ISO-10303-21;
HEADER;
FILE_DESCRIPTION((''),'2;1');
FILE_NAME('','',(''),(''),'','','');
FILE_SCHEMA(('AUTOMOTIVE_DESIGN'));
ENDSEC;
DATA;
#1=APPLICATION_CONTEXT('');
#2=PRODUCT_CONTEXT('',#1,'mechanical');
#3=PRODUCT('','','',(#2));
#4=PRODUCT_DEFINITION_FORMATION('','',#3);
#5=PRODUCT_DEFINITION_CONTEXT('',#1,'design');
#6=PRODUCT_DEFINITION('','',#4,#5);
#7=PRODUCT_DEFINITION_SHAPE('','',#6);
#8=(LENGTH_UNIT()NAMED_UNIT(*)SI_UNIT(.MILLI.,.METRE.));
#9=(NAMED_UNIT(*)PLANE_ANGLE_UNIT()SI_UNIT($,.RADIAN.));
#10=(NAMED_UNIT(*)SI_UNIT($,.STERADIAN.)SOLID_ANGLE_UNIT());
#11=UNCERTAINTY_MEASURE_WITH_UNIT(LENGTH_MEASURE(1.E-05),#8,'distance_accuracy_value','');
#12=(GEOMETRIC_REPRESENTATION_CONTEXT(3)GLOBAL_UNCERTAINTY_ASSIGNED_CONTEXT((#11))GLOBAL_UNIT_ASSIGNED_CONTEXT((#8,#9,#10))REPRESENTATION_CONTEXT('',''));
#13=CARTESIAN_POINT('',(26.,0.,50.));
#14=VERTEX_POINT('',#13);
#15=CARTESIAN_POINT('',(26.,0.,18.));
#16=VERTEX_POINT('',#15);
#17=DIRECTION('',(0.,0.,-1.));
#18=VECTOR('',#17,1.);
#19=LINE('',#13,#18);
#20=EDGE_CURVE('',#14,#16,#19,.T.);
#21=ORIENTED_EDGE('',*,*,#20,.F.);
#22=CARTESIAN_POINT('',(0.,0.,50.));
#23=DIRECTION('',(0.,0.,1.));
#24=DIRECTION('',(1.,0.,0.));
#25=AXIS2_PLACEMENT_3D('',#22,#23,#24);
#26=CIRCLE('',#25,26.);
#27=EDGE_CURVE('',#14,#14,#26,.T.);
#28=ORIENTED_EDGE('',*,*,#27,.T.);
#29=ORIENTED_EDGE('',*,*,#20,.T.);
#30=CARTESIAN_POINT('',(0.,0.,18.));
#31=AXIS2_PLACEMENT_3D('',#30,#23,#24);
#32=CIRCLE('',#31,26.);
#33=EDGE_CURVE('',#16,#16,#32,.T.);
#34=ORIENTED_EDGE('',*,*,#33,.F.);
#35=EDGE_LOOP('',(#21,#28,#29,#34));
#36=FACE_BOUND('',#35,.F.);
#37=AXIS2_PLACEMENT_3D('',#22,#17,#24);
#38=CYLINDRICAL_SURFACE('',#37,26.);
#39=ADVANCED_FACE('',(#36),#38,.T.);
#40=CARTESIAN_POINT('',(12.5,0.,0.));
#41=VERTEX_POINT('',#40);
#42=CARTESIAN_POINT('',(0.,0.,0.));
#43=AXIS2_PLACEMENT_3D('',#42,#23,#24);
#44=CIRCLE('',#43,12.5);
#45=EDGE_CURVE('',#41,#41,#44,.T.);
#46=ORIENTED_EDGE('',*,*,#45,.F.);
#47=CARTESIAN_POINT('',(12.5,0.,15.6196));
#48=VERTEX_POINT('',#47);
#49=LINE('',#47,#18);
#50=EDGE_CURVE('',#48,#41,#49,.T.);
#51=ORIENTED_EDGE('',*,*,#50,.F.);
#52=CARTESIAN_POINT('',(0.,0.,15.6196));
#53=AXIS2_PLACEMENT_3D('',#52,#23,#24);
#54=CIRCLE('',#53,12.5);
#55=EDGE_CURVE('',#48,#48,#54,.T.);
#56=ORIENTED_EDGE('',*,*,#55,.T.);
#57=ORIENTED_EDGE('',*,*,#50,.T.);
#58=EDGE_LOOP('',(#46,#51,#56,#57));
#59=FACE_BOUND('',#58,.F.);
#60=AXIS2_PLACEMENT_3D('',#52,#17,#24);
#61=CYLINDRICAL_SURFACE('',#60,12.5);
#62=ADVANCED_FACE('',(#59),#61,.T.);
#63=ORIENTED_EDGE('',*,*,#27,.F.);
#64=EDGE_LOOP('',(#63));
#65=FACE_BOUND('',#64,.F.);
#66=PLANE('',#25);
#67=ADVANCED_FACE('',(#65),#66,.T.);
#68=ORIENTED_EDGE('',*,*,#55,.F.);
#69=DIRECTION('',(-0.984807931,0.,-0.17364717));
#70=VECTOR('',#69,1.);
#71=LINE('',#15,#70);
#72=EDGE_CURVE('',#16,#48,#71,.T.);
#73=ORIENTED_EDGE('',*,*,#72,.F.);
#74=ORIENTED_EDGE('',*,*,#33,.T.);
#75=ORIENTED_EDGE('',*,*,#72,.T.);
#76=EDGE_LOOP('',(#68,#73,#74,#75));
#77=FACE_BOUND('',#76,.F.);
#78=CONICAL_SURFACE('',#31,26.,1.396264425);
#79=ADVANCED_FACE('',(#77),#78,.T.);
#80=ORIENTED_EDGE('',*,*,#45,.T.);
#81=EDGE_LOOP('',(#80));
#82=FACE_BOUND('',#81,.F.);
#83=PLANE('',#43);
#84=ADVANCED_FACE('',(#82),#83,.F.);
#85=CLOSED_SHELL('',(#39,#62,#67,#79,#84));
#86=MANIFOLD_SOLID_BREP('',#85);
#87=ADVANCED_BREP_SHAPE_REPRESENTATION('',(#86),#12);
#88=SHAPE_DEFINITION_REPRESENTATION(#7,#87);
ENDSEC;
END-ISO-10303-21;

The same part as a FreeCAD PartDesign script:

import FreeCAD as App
import Part
import Sketcher
from FreeCAD import Vector
Q = App.Units.Quantity

doc = App.newDocument("Part")
body = doc.addObject("PartDesign::Body", "Body")

sketch1 = body.newObject("Sketcher::SketchObject", "Sketch")
sketch1.AttachmentSupport = (doc.getObject("XZ_Plane"), [""])
sketch1.MapMode = "FlatFace"
sketch1.addGeometry([
    Part.LineSegment(Vector(12, 0, 0), Vector(0, 0, 0)),
    Part.LineSegment(Vector(0, 0, 0), Vector(0, 50, 0)),
    Part.LineSegment(Vector(0, 50, 0), Vector(26, 50, 0)),
    Part.LineSegment(Vector(26, 50, 0), Vector(26, 18, 0)),
    Part.LineSegment(Vector(26, 18, 0), Vector(12, 16, 0)),
    Part.LineSegment(Vector(12, 16, 0), Vector(12, 0, 0)),
], False)
sketch1.addConstraint([
    Sketcher.Constraint("Coincident", 0, 2, 1, 1),
    Sketcher.Constraint("Coincident", 1, 2, 2, 1),
    Sketcher.Constraint("Coincident", 2, 2, 3, 1),
    Sketcher.Constraint("Coincident", 3, 2, 4, 1),
    Sketcher.Constraint("Coincident", 4, 2, 5, 1),
    Sketcher.Constraint("Coincident", 5, 2, 0, 1),
    Sketcher.Constraint("Horizontal", 0),
    Sketcher.Constraint("Vertical", 1),
    Sketcher.Constraint("Horizontal", 2),
    Sketcher.Constraint("Vertical", 3),
    Sketcher.Constraint("Vertical", 5),
    Sketcher.Constraint("Coincident", 0, 2, -1, 1),
    Sketcher.Constraint("DistanceY", 1, 1, 1, 2, Q("50 mm")),
    Sketcher.Constraint("DistanceY", 3, 2, 3, 1, Q("32 mm")),
    Sketcher.Constraint("DistanceX", 2, 1, 2, 2, Q("26 mm")),
    Sketcher.Constraint("Angle", 4, Q("-170 deg")),
    Sketcher.Constraint("DistanceX", 0, 2, 0, 1, Q("12.5 mm")),
])
revolution = body.newObject("PartDesign::Revolution", "Revolution")
revolution.Profile = sketch1
revolution.ReferenceAxis = (sketch1, ["V_Axis"])
revolution.Angle = 360

doc.recompute()
